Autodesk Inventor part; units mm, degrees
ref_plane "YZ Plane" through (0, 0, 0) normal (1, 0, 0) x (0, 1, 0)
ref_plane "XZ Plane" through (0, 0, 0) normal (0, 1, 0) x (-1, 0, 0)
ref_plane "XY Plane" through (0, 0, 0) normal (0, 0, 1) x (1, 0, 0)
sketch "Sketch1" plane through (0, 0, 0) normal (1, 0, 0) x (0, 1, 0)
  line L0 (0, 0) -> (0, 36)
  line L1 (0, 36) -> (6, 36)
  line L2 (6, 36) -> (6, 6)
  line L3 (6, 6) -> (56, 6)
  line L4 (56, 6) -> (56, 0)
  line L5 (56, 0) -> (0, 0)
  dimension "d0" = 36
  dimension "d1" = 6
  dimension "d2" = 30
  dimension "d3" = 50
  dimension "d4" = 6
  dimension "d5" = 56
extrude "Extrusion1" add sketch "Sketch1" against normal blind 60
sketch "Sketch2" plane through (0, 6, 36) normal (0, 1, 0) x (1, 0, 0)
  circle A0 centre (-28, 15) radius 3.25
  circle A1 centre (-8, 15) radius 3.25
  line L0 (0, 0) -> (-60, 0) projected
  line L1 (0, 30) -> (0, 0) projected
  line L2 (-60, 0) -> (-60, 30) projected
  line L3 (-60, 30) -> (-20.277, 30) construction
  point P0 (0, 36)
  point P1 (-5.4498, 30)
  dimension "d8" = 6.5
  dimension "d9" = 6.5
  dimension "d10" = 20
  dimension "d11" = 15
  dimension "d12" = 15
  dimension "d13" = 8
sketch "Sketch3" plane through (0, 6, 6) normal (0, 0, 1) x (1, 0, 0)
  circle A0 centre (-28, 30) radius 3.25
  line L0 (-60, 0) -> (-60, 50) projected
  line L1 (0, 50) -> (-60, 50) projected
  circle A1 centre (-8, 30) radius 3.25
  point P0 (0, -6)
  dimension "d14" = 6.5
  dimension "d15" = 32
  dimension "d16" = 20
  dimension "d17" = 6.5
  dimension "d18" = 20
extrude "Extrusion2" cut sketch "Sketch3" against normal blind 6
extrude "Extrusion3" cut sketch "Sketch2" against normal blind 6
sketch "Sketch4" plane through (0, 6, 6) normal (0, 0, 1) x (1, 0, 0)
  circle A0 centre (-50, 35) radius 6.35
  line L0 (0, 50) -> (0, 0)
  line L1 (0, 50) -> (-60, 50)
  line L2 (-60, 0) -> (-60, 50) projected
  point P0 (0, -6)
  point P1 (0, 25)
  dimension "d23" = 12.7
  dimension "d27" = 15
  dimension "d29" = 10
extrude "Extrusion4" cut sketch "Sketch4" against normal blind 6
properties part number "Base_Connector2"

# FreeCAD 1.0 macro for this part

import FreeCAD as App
import Part
import Sketcher

V = App.Vector


def add_polygon(sketch, points):
    """Adds a closed chain of lines whose ends are joined by coincident constraints."""
    first, n = sketch.GeometryCount, len(points)
    for a, b in zip(points, points[1:] + points[:1]):
        sketch.addGeometry(Part.LineSegment(App.Vector(*a, 0), App.Vector(*b, 0)), False)
    for i in range(n):
        sketch.addConstraint(Sketcher.Constraint("Coincident", first + i, 2, first + (i + 1) % n, 1))

doc = App.newDocument("Part")
body = doc.addObject("PartDesign::Body", "Body")

# Sketch on YZ plane
sketch1 = body.newObject("Sketcher::SketchObject", "Sketch")
sketch1.AttachmentSupport = (doc.getObject("YZ_Plane"), [""])
sketch1.MapMode = "FlatFace"
add_polygon(sketch1, [(0, 36), (0, 0), (56, 0), (56, 6), (6, 6), (6, 36)])  # lines 0-5
sketch1.addConstraint(Sketcher.Constraint("Vertical", 0))
sketch1.addConstraint(Sketcher.Constraint("Horizontal", 1))
sketch1.addConstraint(Sketcher.Constraint("Vertical", 2))
sketch1.addConstraint(Sketcher.Constraint("Horizontal", 3))
sketch1.addConstraint(Sketcher.Constraint("Vertical", 4))
sketch1.addConstraint(Sketcher.Constraint("Horizontal", 5))
sketch1.addConstraint(Sketcher.Constraint("Coincident", 0, 2, -1, 1))
sketch1.addConstraint(Sketcher.Constraint("Equal", 5, 2))
sketch1.addConstraint(Sketcher.Constraint("DistanceX", 1, 1, 1, 2, 56.0))
sketch1.addConstraint(Sketcher.Constraint("DistanceX", 3, 2, 3, 1, 50.0))
sketch1.addConstraint(Sketcher.Constraint("DistanceY", 0, 2, 0, 1, 36.0))
pad1 = body.newObject("PartDesign::Pad", "Pad")
pad1.Profile = sketch1
pad1.Length = 60
pad1.Reversed = True

# Sketch on XY plane
sketch2 = body.newObject("Sketcher::SketchObject", "Sketch001")
sketch2.AttachmentSupport = (doc.getObject("XY_Plane"), [""])
sketch2.MapMode = "FlatFace"
sketch2.AttachmentOffset = App.Placement(V(0, 0, 6), App.Rotation())
sketch2.addGeometry(Part.Circle(V(-28, 36, 0), V(0, 0, 1), 3.2), False)
sketch2.addGeometry(Part.Circle(V(-8, 36, 0), V(0, 0, 1), 3.2), False)
sketch2.addConstraint(Sketcher.Constraint("Equal", 0, 1))
sketch2.addConstraint(Sketcher.Constraint("Horizontal", 0, 3, 1, 3))
sketch2.addConstraint(Sketcher.Constraint("Diameter", 0, 6.5))
sketch2.addConstraint(Sketcher.Constraint("DistanceX", 0, 3, 1, 3, 20.0))
sketch2.addConstraint(Sketcher.Constraint("DistanceX", 0, 3, -1, 1, 28.0))
sketch2.addConstraint(Sketcher.Constraint("DistanceY", -1, 1, 0, 3, 36.0))
pocket1 = body.newObject("PartDesign::Pocket", "Pocket")
pocket1.Profile = sketch2
pocket1.Length = 6

# Sketch on XZ plane
sketch3 = body.newObject("Sketcher::SketchObject", "Sketch002")
sketch3.AttachmentSupport = (doc.getObject("XZ_Plane"), [""])
sketch3.MapMode = "FlatFace"
sketch3.AttachmentOffset = App.Placement(V(0, 0, -6), App.Rotation())
sketch3.addGeometry(Part.Circle(V(-28, 21, 0), V(0, 0, 1), 3.2), False)
sketch3.addGeometry(Part.Circle(V(-8, 21, 0), V(0, 0, 1), 3.2), False)
sketch3.addConstraint(Sketcher.Constraint("Equal", 0, 1))
sketch3.addConstraint(Sketcher.Constraint("Horizontal", 0, 3, 1, 3))
sketch3.addConstraint(Sketcher.Constraint("Diameter", 0, 6.5))
sketch3.addConstraint(Sketcher.Constraint("DistanceX", 1, 3, -1, 1, 8.0))
sketch3.addConstraint(Sketcher.Constraint("DistanceX", 0, 3, 1, 3, 20.0))
sketch3.addConstraint(Sketcher.Constraint("DistanceY", -1, 1, 0, 3, 21.0))
pocket2 = body.newObject("PartDesign::Pocket", "Pocket001")
pocket2.Profile = sketch3
pocket2.Length = 6
pocket2.Reversed = True

# Sketch on XY plane
sketch4 = body.newObject("Sketcher::SketchObject", "Sketch003")
sketch4.AttachmentSupport = (doc.getObject("XY_Plane"), [""])
sketch4.MapMode = "FlatFace"
sketch4.AttachmentOffset = App.Placement(V(0, 0, 6), App.Rotation())
sketch4.addGeometry(Part.Circle(V(-50, 41, 0), V(0, 0, 1), 6), False)
sketch4.addConstraint(Sketcher.Constraint("Diameter", 0, 12.7))
sketch4.addConstraint(Sketcher.Constraint("DistanceX", 0, 3, -1, 1, 50.0))
sketch4.addConstraint(Sketcher.Constraint("DistanceY", -1, 1, 0, 3, 41.0))
pocket3 = body.newObject("PartDesign::Pocket", "Pocket002")
pocket3.Profile = sketch4
pocket3.Length = 6

doc.recompute()
